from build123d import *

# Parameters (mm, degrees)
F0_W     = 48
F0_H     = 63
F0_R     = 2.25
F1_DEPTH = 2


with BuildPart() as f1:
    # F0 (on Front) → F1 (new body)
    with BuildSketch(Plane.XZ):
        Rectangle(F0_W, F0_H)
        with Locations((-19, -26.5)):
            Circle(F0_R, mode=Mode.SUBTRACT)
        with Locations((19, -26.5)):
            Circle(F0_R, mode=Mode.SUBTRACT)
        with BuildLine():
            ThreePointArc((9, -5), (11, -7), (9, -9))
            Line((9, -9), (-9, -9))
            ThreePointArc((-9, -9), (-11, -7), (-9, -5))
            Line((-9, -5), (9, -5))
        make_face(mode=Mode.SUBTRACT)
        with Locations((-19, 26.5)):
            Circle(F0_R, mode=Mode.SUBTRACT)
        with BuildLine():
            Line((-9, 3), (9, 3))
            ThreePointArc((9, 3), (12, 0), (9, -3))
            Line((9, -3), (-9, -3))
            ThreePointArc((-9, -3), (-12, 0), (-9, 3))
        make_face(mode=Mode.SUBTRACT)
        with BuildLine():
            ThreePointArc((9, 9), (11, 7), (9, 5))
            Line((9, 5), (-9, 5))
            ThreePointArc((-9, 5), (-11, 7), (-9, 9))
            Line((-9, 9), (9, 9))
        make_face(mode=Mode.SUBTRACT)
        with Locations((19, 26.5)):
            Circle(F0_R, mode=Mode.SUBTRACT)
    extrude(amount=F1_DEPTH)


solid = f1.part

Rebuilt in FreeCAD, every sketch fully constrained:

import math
import FreeCAD as App
import Part
import Sketcher
from FreeCAD import Vector
Q = App.Units.Quantity

doc = App.newDocument("Part")
body = doc.addObject("PartDesign::Body", "Body")

sketch1 = body.newObject("Sketcher::SketchObject", "Sketch")
sketch1.AttachmentSupport = (doc.getObject("XZ_Plane"), [""])
sketch1.MapMode = "FlatFace"
sketch1.addGeometry([
    Part.LineSegment(Vector(-24, 31.5, 0), Vector(-24, -31.5, 0)),
    Part.LineSegment(Vector(-24, -31.5, 0), Vector(24, -31.5, 0)),
    Part.LineSegment(Vector(24, -31.5, 0), Vector(24, 31.5, 0)),
    Part.LineSegment(Vector(24, 31.5, 0), Vector(-24, 31.5, 0)),
    Part.Circle(Vector(-19, -26.5, 0), Vector(0, 0, 1), 2.2),
    Part.Circle(Vector(19, -26.5, 0), Vector(0, 0, 1), 2.2),
    Part.LineSegment(Vector(-9, -5, 0), Vector(9, -5, 0)),
    Part.ArcOfCircle(Part.Circle(Vector(9, -7, 0), Vector(0, 0, 1), 2), math.radians(-90), math.radians(90)),
    Part.LineSegment(Vector(9, -9, 0), Vector(-9, -9, 0)),
    Part.ArcOfCircle(Part.Circle(Vector(-9, -7, 0), Vector(0, 0, 1), 2), math.radians(90), math.radians(270)),
    Part.Circle(Vector(-19, 26.5, 0), Vector(0, 0, 1), 2.2),
    Part.ArcOfCircle(Part.Circle(Vector(-9, 0, 0), Vector(0, 0, 1), 3), math.radians(90), math.radians(270)),
    Part.LineSegment(Vector(-9, 3, 0), Vector(9, 3, 0)),
    Part.ArcOfCircle(Part.Circle(Vector(9, 0, 0), Vector(0, 0, 1), 3), math.radians(-90), math.radians(90)),
    Part.LineSegment(Vector(9, -3, 0), Vector(-9, -3, 0)),
    Part.LineSegment(Vector(-9, 9, 0), Vector(9, 9, 0)),
    Part.ArcOfCircle(Part.Circle(Vector(9, 7, 0), Vector(0, 0, 1), 2), math.radians(-90), math.radians(90)),
    Part.LineSegment(Vector(9, 5, 0), Vector(-9, 5, 0)),
    Part.ArcOfCircle(Part.Circle(Vector(-9, 7, 0), Vector(0, 0, 1), 2), math.radians(90), math.radians(270)),
    Part.Circle(Vector(19, 26.5, 0), Vector(0, 0, 1), 2.2),
], False)
sketch1.addConstraint([
    Sketcher.Constraint("Coincident", 0, 2, 1, 1),
    Sketcher.Constraint("Coincident", 1, 2, 2, 1),
    Sketcher.Constraint("Coincident", 2, 2, 3, 1),
    Sketcher.Constraint("Coincident", 3, 2, 0, 1),
    Sketcher.Constraint("Tangent", 6, 2, 7, 2),
    Sketcher.Constraint("Tangent", 7, 1, 8, 1),
    Sketcher.Constraint("Tangent", 8, 2, 9, 2),
    Sketcher.Constraint("Tangent", 9, 1, 6, 1),
    Sketcher.Constraint("Tangent", 11, 1, 12, 1),
    Sketcher.Constraint("Tangent", 12, 2, 13, 2),
    Sketcher.Constraint("Tangent", 13, 1, 14, 1),
    Sketcher.Constraint("Tangent", 14, 2, 11, 2),
    Sketcher.Constraint("Tangent", 15, 2, 16, 2),
    Sketcher.Constraint("Tangent", 16, 1, 17, 1),
    Sketcher.Constraint("Tangent", 17, 2, 18, 2),
    Sketcher.Constraint("Tangent", 18, 1, 15, 1),
    Sketcher.Constraint("Vertical", 0),
    Sketcher.Constraint("Horizontal", 1),
    Sketcher.Constraint("Vertical", 2),
    Sketcher.Constraint("Horizontal", 3),
    Sketcher.Constraint("Horizontal", 6),
    Sketcher.Constraint("Horizontal", 8),
    Sketcher.Constraint("Horizontal", 12),
    Sketcher.Constraint("Horizontal", 14),
    Sketcher.Constraint("Horizontal", 15),
    Sketcher.Constraint("Horizontal", 17),
    Sketcher.Constraint("Equal", 4, 5),
    Sketcher.Constraint("Equal", 5, 10),
    Sketcher.Constraint("Equal", 9, 16),
    Sketcher.Constraint("Equal", 10, 19),
    Sketcher.Constraint("Symmetric", 5, 3, 10, 3, -1, 1),
    Sketcher.Constraint("Symmetric", 11, 3, 13, 3, -1, 1),
    Sketcher.Constraint("Symmetric", 9, 3, 16, 3, -1, 1),
    Sketcher.Constraint("Symmetric", 4, 3, 19, 3, -1, 1),
    Sketcher.Constraint("Symmetric", 0, 2, 2, 2, -1, 1),
    Sketcher.Constraint("Symmetric", 4, 3, 5, 3, -2),
    Sketcher.Constraint("Vertical", 9, 3, 11, 3),
    Sketcher.Constraint("Vertical", 7, 3, 13, 3),
    Sketcher.Constraint("Vertical", 11, 3, 18, 3),
    Sketcher.Constraint("Radius", 7, Q("2 mm")),
    Sketcher.Constraint("Radius", 11, Q("3 mm")),
    Sketcher.Constraint("Diameter", 4, Q("4.5 mm")),
    Sketcher.Constraint("DistanceX", 1, 1, 1, 2, Q("48 mm")),
    Sketcher.Constraint("DistanceX", 6, 1, 6, 2, Q("18 mm")),
    Sketcher.Constraint("DistanceY", 0, 2, 0, 1, Q("63 mm")),
    Sketcher.Constraint("DistanceX", 4, 3, -1, 1, Q("19 mm")),
    Sketcher.Constraint("DistanceY", 7, 3, -1, 1, Q("7 mm")),
    Sketcher.Constraint("DistanceY", 4, 3, 10, 3, Q("53 mm")),
])
pad1 = body.newObject("PartDesign::Pad", "Pad")
pad1.Profile = sketch1
pad1.Length = 2

doc.recompute()
